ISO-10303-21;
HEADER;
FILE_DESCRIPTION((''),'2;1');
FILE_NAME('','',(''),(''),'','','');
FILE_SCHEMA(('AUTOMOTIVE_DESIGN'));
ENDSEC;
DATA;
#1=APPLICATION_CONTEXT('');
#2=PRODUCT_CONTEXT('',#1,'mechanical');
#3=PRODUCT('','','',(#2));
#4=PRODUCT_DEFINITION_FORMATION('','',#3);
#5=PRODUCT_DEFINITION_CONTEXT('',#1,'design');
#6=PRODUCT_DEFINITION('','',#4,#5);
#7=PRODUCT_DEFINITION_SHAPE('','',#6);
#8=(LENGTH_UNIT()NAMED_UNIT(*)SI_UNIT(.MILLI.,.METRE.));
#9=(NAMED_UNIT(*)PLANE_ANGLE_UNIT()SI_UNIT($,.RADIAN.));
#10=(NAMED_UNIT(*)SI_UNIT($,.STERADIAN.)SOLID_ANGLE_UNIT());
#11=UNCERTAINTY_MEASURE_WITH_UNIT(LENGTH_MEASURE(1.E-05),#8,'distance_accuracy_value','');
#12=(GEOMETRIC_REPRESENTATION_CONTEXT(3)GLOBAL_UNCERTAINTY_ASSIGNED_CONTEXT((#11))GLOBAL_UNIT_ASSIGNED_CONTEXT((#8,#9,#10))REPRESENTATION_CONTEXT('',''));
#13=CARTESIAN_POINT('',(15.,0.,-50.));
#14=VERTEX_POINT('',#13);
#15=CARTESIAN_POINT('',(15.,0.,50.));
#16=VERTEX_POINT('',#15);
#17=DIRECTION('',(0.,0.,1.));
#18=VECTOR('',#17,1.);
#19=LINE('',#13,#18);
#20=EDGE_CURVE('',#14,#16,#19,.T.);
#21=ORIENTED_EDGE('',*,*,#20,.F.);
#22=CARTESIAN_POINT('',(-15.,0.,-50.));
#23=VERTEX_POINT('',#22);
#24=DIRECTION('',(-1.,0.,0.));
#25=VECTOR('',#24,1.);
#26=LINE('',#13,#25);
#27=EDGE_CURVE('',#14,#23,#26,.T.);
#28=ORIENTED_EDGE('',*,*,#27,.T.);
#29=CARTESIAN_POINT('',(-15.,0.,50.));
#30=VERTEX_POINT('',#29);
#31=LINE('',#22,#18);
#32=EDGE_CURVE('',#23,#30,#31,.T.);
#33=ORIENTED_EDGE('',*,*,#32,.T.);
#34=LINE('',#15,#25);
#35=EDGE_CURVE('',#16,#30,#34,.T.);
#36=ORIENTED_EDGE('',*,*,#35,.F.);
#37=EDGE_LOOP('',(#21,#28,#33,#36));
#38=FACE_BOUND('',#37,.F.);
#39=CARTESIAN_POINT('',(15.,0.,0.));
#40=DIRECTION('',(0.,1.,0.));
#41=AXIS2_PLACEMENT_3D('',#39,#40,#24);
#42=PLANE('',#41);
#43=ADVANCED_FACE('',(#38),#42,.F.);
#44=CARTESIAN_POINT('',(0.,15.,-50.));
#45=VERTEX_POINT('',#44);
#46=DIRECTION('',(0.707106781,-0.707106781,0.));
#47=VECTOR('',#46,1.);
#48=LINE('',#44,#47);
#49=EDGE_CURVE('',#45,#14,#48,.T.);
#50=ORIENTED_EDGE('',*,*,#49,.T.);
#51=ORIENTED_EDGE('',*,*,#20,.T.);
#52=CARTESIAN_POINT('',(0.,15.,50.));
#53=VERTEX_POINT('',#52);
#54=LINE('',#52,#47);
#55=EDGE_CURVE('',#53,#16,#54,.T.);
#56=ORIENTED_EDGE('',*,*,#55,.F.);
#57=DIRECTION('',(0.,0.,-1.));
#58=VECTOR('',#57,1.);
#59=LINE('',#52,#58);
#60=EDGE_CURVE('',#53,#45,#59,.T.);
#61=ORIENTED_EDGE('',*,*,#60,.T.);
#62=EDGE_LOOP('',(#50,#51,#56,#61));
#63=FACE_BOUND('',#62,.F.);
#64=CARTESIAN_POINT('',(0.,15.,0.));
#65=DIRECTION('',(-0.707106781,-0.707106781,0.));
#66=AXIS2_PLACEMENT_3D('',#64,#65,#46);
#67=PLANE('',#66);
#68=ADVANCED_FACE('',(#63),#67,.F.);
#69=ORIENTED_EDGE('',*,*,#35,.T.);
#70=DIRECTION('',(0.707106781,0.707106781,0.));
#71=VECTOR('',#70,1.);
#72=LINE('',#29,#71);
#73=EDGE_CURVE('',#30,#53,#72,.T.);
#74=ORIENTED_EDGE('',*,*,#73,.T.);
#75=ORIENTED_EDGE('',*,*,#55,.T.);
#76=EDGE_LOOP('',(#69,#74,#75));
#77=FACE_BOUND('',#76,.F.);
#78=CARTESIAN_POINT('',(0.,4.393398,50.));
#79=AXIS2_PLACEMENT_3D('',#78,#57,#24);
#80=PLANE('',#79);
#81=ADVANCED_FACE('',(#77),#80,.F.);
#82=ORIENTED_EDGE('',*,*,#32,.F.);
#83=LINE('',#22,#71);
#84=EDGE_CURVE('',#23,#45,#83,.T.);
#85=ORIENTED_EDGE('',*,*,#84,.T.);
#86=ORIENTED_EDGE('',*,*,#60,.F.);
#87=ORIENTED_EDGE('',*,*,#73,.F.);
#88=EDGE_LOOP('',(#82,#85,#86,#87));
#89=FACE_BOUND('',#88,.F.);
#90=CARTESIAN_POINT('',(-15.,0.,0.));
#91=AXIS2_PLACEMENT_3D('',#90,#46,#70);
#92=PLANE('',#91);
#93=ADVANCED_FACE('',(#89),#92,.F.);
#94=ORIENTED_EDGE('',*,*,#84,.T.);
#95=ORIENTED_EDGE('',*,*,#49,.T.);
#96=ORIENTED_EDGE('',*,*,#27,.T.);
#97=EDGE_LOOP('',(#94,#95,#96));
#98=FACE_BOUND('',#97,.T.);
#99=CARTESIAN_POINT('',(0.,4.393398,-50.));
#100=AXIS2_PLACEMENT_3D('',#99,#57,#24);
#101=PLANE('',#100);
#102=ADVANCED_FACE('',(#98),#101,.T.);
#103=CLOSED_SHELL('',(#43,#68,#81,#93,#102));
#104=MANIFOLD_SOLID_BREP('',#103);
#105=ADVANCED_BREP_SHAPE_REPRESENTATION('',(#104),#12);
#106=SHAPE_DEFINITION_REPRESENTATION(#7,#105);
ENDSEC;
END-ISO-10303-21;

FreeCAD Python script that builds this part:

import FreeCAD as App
import Part
import Sketcher

V = App.Vector
Q = App.Units.Quantity


def add_polygon(sketch, points):
    """Adds a closed chain of lines whose ends are joined by coincident constraints."""
    first, n = sketch.GeometryCount, len(points)
    for a, b in zip(points, points[1:] + points[:1]):
        sketch.addGeometry(Part.LineSegment(App.Vector(*a, 0), App.Vector(*b, 0)), False)
    for i in range(n):
        sketch.addConstraint(Sketcher.Constraint("Coincident", first + i, 2, first + (i + 1) % n, 1))

doc = App.newDocument("Part")
body = doc.addObject("PartDesign::Body", "Body")

# Sketch on XY plane
sketch1 = doc.addObject("Sketcher::SketchObject", "Sketch")
body.addObject(sketch1)
sketch1.AttachmentSupport = (doc.XY_Plane, [""])
sketch1.MapMode = "FlatFace"
add_polygon(sketch1, [(0, 15), (-15, 0), (15, 0)])  # lines 0-2
sketch1.addConstraint([
    Sketcher.Constraint("Horizontal", 1),
    Sketcher.Constraint("Symmetric", 0, 2, 1, 2, -1, 1),
    Sketcher.Constraint("PointOnObject", 2, 2, -2),
    Sketcher.Constraint("Perpendicular", 0, 2),
    Sketcher.Constraint("DistanceX", 1, 1, 1, 2, Q("30 mm")),
])
pad1 = doc.addObject("PartDesign::Pad", "Pad")
body.addObject(pad1)
pad1.Profile = sketch1
pad1.Length = 100
pad1.Midplane = True

doc.recompute()
